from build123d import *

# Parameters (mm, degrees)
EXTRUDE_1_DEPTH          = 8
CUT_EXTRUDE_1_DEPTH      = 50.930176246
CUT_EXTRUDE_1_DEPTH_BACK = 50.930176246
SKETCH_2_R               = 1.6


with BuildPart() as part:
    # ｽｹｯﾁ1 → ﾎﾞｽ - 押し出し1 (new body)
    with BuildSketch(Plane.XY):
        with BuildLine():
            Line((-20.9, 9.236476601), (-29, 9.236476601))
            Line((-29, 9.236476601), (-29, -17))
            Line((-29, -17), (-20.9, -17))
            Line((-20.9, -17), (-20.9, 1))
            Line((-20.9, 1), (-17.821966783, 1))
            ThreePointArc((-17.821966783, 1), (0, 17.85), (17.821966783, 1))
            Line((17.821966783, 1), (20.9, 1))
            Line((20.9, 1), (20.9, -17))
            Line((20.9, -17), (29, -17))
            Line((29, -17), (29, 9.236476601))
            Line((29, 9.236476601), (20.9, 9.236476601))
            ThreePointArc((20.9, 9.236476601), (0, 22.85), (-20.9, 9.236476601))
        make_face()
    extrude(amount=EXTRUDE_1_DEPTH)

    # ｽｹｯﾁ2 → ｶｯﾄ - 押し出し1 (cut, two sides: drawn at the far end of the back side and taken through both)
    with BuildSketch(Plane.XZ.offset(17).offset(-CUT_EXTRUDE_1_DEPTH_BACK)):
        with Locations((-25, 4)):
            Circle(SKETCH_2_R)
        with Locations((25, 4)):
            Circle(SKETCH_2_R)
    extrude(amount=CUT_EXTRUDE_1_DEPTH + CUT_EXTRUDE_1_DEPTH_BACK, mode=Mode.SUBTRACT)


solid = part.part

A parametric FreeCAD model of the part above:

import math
import FreeCAD as App
import Part
import Sketcher

doc = App.newDocument("Part")
params = doc.addObject("Spreadsheet::Sheet", "Params")
for row, (alias, value) in enumerate([
    ("sketch1_height", "18 mm"),
    ("sketch1_radius", "17.85 mm"),
    ("sketch1_radius2", "22.85 mm"),
    ("sketch1_width", "8.1 mm"),
    ("pad1_length", "8 mm"),
    ("sketch2_diameter", "3.2 mm"),
], start=1):
    params.set(f"A{row}", alias)
    params.set(f"B{row}", "=" + value)
    params.setAlias(f"B{row}", alias)

body = doc.addObject("PartDesign::Body", "Body")

# Sketch on XY plane
sketch1 = body.newObject("Sketcher::SketchObject", "Sketch")
sketch1.AttachmentSupport = (doc.getObject("XY_Plane"), [""])
sketch1.MapMode = "FlatFace"
sketch1.addGeometry([
    Part.LineSegment(App.Vector(-20.9, 9.2, 0), App.Vector(-29, 9.2, 0)),  # 0
    Part.LineSegment(App.Vector(-29, 9.2, 0), App.Vector(-29, -17, 0)),  # 1
    Part.LineSegment(App.Vector(-29, -17, 0), App.Vector(-20.9, -17, 0)),  # 2
    Part.LineSegment(App.Vector(-20.9, -17, 0), App.Vector(-20.9, 1, 0)),  # 3
    Part.LineSegment(App.Vector(-20.9, 1, 0), App.Vector(-17.8, 1, 0)),  # 4
    Part.ArcOfCircle(Part.Circle(App.Vector(0, 0, 0), App.Vector(0, 0, 1), 17.9), math.radians(3), math.radians(177)),  # 5
    Part.LineSegment(App.Vector(17.8, 1, 0), App.Vector(20.9, 1, 0)),  # 6
    Part.LineSegment(App.Vector(20.9, 1, 0), App.Vector(20.9, -17, 0)),  # 7
    Part.LineSegment(App.Vector(20.9, -17, 0), App.Vector(29, -17, 0)),  # 8
    Part.LineSegment(App.Vector(29, -17, 0), App.Vector(29, 9.2, 0)),  # 9
    Part.LineSegment(App.Vector(29, 9.2, 0), App.Vector(20.9, 9.2, 0)),  # 10
    Part.ArcOfCircle(Part.Circle(App.Vector(0, 0, 0), App.Vector(0, 0, 1), 22.9), math.radians(24), math.radians(156)),  # 11
], False)
sketch1.addConstraint([
    Sketcher.Constraint("Coincident", 0, 2, 1, 1),
    Sketcher.Constraint("Coincident", 1, 2, 2, 1),
    Sketcher.Constraint("Coincident", 2, 2, 3, 1),
    Sketcher.Constraint("Coincident", 3, 2, 4, 1),
    Sketcher.Constraint("Coincident", 4, 2, 5, 2),
    Sketcher.Constraint("Coincident", 5, 1, 6, 1),
    Sketcher.Constraint("Coincident", 6, 2, 7, 1),
    Sketcher.Constraint("Coincident", 7, 2, 8, 1),
    Sketcher.Constraint("Coincident", 8, 2, 9, 1),
    Sketcher.Constraint("Coincident", 9, 2, 10, 1),
    Sketcher.Constraint("Coincident", 10, 2, 11, 1),
    Sketcher.Constraint("Coincident", 11, 2, 0, 1),
    Sketcher.Constraint("Horizontal", 0),
    Sketcher.Constraint("Vertical", 1),
    Sketcher.Constraint("Horizontal", 2),
    Sketcher.Constraint("Vertical", 3),
    Sketcher.Constraint("Horizontal", 4),
    Sketcher.Constraint("Horizontal", 6),
    Sketcher.Constraint("Vertical", 7),
    Sketcher.Constraint("Horizontal", 8),
    Sketcher.Constraint("Vertical", 9),
    Sketcher.Constraint("Horizontal", 10),
    Sketcher.Constraint("Coincident", 5, 3, -1, 1),
    Sketcher.Constraint("Coincident", 11, 3, -1, 1),
    Sketcher.Constraint("Symmetric", 3, 2, 6, 2, -2),
    Sketcher.Constraint("Symmetric", 1, 2, 8, 2, -2),
    Sketcher.Constraint("Horizontal", 0, 2, 9, 2),
    Sketcher.Constraint("Vertical", 7, 2, 10, 2),
    Sketcher.Constraint("DistanceY", 3, 1, 3, 2, 18.0),
    Sketcher.Constraint("Radius", 5, 17.85),
    Sketcher.Constraint("Radius", 11, 22.85),
    Sketcher.Constraint("DistanceX", 0, 2, 0, 1, 8.1),
    Sketcher.Constraint("DistanceX", 0, 2, -1, 1, 29.0),
    Sketcher.Constraint("DistanceY", 1, 2, -1, 1, 17.0),
])
sketch1.setExpression("Constraints[28]", "Params.sketch1_height")
sketch1.setExpression("Constraints[29]", "Params.sketch1_radius")
sketch1.setExpression("Constraints[30]", "Params.sketch1_radius2")
sketch1.setExpression("Constraints[31]", "Params.sketch1_width")
pad1 = body.newObject("PartDesign::Pad", "Pad")
pad1.Profile = sketch1
pad1.setExpression("Length", "Params.pad1_length")

# Sketch on XZ plane
sketch2 = body.newObject("Sketcher::SketchObject", "Sketch001")
sketch2.AttachmentSupport = (doc.getObject("XZ_Plane"), [""])
sketch2.MapMode = "FlatFace"
sketch2.AttachmentOffset = App.Placement(App.Vector(0, 0, 17), App.Rotation())
sketch2.addGeometry([
    Part.Circle(App.Vector(-25, 4, 0), App.Vector(0, 0, 1), 1.6),
    Part.Circle(App.Vector(25, 4, 0), App.Vector(0, 0, 1), 1.6),
], False)
sketch2.addConstraint([
    Sketcher.Constraint("Equal", 0, 1),
    Sketcher.Constraint("Symmetric", 0, 3, 1, 3, -2),
    Sketcher.Constraint("Diameter", 0, 3.2),
    Sketcher.Constraint("DistanceX", 0, 3, -1, 1, 25.0),
    Sketcher.Constraint("DistanceY", -1, 1, 0, 3, 4.0),
])
sketch2.setExpression("Constraints[2]", "Params.sketch2_diameter")
pocket1 = body.newObject("PartDesign::Pocket", "Pocket")
pocket1.Profile = sketch2
pocket1.Type = "ThroughAll"
pocket1.Midplane = True

doc.recompute()
